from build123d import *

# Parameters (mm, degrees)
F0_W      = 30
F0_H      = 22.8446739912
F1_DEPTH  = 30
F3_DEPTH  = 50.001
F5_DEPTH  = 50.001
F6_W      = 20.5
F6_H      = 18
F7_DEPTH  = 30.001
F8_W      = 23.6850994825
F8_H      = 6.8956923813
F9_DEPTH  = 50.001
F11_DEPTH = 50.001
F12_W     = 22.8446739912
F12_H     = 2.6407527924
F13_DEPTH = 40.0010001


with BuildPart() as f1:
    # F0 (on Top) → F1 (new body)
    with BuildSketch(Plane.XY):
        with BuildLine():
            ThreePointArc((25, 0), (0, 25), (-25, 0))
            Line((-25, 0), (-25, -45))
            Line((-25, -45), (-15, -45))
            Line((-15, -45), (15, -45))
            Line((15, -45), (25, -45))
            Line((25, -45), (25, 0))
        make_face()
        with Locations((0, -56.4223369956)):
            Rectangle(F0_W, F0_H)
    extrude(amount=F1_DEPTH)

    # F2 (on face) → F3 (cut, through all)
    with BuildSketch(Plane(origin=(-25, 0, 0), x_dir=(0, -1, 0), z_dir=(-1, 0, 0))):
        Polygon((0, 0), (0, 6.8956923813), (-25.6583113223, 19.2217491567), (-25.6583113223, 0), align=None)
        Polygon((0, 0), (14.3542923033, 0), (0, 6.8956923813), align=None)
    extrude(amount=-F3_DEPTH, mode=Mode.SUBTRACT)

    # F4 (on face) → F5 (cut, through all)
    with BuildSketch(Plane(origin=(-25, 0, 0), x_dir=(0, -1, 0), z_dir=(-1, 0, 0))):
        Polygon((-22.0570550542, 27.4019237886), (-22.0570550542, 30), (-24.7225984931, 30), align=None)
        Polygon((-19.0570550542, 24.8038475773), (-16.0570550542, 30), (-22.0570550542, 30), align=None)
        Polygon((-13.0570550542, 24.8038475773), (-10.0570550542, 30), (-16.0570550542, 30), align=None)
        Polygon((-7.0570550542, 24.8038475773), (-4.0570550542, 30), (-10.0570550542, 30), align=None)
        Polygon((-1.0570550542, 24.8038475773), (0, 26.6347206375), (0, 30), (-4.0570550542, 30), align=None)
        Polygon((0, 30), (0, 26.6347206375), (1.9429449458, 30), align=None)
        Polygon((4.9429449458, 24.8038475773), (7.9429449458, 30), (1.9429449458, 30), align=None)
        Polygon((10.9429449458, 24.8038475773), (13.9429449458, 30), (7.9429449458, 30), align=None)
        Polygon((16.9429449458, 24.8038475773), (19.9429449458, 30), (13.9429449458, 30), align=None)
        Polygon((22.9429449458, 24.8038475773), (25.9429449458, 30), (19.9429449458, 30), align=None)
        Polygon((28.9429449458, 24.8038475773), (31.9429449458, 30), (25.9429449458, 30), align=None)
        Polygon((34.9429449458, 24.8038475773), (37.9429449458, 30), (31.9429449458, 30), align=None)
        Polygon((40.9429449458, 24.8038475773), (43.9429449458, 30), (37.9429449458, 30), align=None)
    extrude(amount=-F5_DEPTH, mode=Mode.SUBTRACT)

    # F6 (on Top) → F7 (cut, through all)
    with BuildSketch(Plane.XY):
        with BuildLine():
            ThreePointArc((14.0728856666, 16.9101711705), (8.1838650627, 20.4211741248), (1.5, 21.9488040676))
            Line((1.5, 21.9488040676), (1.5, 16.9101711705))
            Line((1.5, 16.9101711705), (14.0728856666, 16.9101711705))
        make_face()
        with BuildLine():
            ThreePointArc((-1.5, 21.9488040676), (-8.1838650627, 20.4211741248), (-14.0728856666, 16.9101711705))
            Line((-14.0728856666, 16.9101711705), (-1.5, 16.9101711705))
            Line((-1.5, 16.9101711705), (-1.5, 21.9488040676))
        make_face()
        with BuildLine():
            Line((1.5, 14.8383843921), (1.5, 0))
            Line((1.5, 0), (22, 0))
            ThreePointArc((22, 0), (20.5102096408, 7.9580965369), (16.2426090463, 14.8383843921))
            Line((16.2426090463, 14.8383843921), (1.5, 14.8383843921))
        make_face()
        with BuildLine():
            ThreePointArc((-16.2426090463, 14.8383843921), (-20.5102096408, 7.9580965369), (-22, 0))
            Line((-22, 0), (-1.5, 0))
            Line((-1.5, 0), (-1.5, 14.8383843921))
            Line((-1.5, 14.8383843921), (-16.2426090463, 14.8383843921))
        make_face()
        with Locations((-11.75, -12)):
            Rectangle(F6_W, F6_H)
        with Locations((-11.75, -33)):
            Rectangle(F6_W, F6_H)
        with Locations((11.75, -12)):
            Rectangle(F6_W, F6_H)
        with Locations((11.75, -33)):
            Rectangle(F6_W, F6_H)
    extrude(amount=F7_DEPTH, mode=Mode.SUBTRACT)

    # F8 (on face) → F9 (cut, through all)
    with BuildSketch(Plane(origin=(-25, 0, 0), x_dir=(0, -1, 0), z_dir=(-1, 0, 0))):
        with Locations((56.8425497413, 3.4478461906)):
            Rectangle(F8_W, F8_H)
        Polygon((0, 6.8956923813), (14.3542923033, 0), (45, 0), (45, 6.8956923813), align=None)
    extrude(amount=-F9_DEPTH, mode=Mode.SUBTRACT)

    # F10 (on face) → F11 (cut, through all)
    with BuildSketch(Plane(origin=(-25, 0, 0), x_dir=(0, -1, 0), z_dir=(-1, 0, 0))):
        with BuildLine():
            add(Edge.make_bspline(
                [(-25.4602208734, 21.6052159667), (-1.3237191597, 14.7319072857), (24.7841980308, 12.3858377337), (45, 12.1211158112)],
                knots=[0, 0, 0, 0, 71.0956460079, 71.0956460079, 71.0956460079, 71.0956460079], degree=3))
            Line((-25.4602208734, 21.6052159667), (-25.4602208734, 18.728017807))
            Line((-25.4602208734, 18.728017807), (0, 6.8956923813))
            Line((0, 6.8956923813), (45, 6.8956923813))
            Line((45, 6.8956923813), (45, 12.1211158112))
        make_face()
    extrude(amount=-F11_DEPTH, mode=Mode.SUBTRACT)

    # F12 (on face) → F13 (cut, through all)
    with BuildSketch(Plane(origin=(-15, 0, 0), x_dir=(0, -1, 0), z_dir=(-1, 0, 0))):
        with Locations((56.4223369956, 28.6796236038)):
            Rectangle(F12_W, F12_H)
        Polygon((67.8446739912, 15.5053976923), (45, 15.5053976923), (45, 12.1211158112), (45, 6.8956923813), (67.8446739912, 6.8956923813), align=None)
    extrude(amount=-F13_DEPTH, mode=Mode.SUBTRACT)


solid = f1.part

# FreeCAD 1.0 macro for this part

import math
import FreeCAD as App
import Part
import Sketcher
from FreeCAD import Vector
Q = App.Units.Quantity


def add_polygon(sketch, points):
    """Adds a closed chain of lines whose ends are joined by coincident constraints."""
    first, n = sketch.GeometryCount, len(points)
    for a, b in zip(points, points[1:] + points[:1]):
        sketch.addGeometry(Part.LineSegment(App.Vector(*a, 0), App.Vector(*b, 0)), False)
    for i in range(n):
        sketch.addConstraint(Sketcher.Constraint("Coincident", first + i, 2, first + (i + 1) % n, 1))

doc = App.newDocument("Part")
params = doc.addObject("Spreadsheet::Sheet", "Params")
for row, (alias, value) in enumerate([
    ("sketch1_radius", "25 mm"),
    ("sketch1_width", "10 mm"),
    ("sketch1_height", "45 mm"),
    ("pad1_length", "30 mm"),
    ("sketch3_width", "6 mm"),
    ("sketch4_radius", "22 mm"),
    ("sketch4_height", "18 mm"),
    ("sketch4_width", "20.5 mm"),
], start=1):
    params.set(f"A{row}", alias)
    params.set(f"B{row}", "=" + value)
    params.setAlias(f"B{row}", alias)

body = doc.addObject("PartDesign::Body", "Body")

# Sketch on XY plane
sketch1 = doc.addObject("Sketcher::SketchObject", "Sketch")
body.addObject(sketch1)
sketch1.AttachmentSupport = (doc.XY_Plane, [""])
sketch1.MapMode = "FlatFace"
sketch1.addGeometry([
    Part.ArcOfCircle(Part.Circle(Vector(0, 0, 0), Vector(0, 0, 1), 25), math.radians(0), math.radians(180)),  # 0
    Part.LineSegment(Vector(-25, 0, 0), Vector(-25, -45, 0)),  # 1
    Part.LineSegment(Vector(-25, -45, 0), Vector(-15, -45, 0)),  # 2
    Part.LineSegment(Vector(-15, -45, 0), Vector(-15, -68, 0)),  # 3
    Part.LineSegment(Vector(-15, -68, 0), Vector(15, -68, 0)),  # 4
    Part.LineSegment(Vector(15, -68, 0), Vector(15, -45, 0)),  # 5
    Part.LineSegment(Vector(15, -45, 0), Vector(25, -45, 0)),  # 6
    Part.LineSegment(Vector(25, -45, 0), Vector(25, 0, 0)),  # 7
], False)
sketch1.addConstraint([
    Sketcher.Constraint("Tangent", 0, 2, 1, 1),
    Sketcher.Constraint("Coincident", 1, 2, 2, 1),
    Sketcher.Constraint("Coincident", 2, 2, 3, 1),
    Sketcher.Constraint("Coincident", 3, 2, 4, 1),
    Sketcher.Constraint("Coincident", 4, 2, 5, 1),
    Sketcher.Constraint("Coincident", 5, 2, 6, 1),
    Sketcher.Constraint("Coincident", 6, 2, 7, 1),
    Sketcher.Constraint("Tangent", 7, 2, 0, 1),
    Sketcher.Constraint("Vertical", 1),
    Sketcher.Constraint("Horizontal", 2),
    Sketcher.Constraint("Vertical", 3),
    Sketcher.Constraint("Horizontal", 4),
    Sketcher.Constraint("Vertical", 5),
    Sketcher.Constraint("Horizontal", 6),
    Sketcher.Constraint("Vertical", 7),
    Sketcher.Constraint("Coincident", 0, 3, -1, 1),
    Sketcher.Constraint("Symmetric", 2, 2, 5, 2, -2),
    Sketcher.Constraint("Radius", 0, 25.0),
    Sketcher.Constraint("DistanceX", 2, 1, 2, 2, 10.0),
    Sketcher.Constraint("DistanceY", 1, 2, 1, 1, 45.0),
    Sketcher.Constraint("DistanceY", 3, 2, 3, 1, 22.844674),
])
sketch1.setExpression("Constraints[17]", "Params.sketch1_radius")
sketch1.setExpression("Constraints[18]", "Params.sketch1_width")
sketch1.setExpression("Constraints[19]", "Params.sketch1_height")
pad1 = doc.addObject("PartDesign::Pad", "Pad")
body.addObject(pad1)
pad1.Profile = sketch1
pad1.setExpression("Length", "Params.pad1_length")

# Sketch on YZ plane
sketch2 = doc.addObject("Sketcher::SketchObject", "Sketch001")
body.addObject(sketch2)
sketch2.AttachmentSupport = (doc.YZ_Plane, [""])
sketch2.MapMode = "FlatFace"
sketch2.AttachmentOffset = App.Placement(Vector(0, 0, -25), App.Rotation())
add_polygon(sketch2, [(0, 7), (26, 19), (26, 0), (-14, 0)])  # lines 0-3
sketch2.addConstraint([
    Sketcher.Constraint("Vertical", 1),
    Sketcher.Constraint("Horizontal", 2),
    Sketcher.Constraint("PointOnObject", 1, 2, -1),
    Sketcher.Constraint("PointOnObject", 3, 2, -2),
    Sketcher.Constraint("Parallel", 0, 3),
    Sketcher.Constraint("DistanceY", 1, 2, 1, 1, 19.221749),
    Sketcher.Constraint("Distance", 0, 28.465428),
    Sketcher.Constraint("DistanceX", 2, 2, 2, 1, 40.012604),
])
pocket1 = doc.addObject("PartDesign::Pocket", "Pocket")
body.addObject(pocket1)
pocket1.Profile = sketch2
pocket1.Type = "ThroughAll"
pocket1.Reversed = True

# Sketch on YZ plane
sketch3 = doc.addObject("Sketcher::SketchObject", "Sketch002")
body.addObject(sketch3)
sketch3.AttachmentSupport = (doc.YZ_Plane, [""])
sketch3.MapMode = "FlatFace"
sketch3.AttachmentOffset = App.Placement(Vector(0, 0, -25), App.Rotation())
add_polygon(sketch3, [(22.1, 27.4), (22.1, 30), (24.7, 30)])  # lines 0-2
add_polygon(sketch3, [(19.1, 24.8), (16.1, 30), (22.1, 30)])  # lines 3-5
add_polygon(sketch3, [(13.1, 24.8), (10.1, 30), (16.1, 30)])  # lines 6-8
add_polygon(sketch3, [(7.1, 24.8), (4.1, 30), (10.1, 30)])  # lines 9-11
add_polygon(sketch3, [(1.1, 24.8), (0, 26.6), (-1.9, 30), (4.1, 30)])  # lines 12-15
add_polygon(sketch3, [(-4.9, 24.8), (-7.9, 30), (-1.9, 30)])  # lines 16-18
add_polygon(sketch3, [(-10.9, 24.8), (-13.9, 30), (-7.9, 30)])  # lines 19-21
add_polygon(sketch3, [(-16.9, 24.8), (-19.9, 30), (-13.9, 30)])  # lines 22-24
add_polygon(sketch3, [(-22.9, 24.8), (-25.9, 30), (-19.9, 30)])  # lines 25-27
add_polygon(sketch3, [(-28.9, 24.8), (-31.9, 30), (-25.9, 30)])  # lines 28-30
add_polygon(sketch3, [(-34.9, 24.8), (-37.9, 30), (-31.9, 30)])  # lines 31-33
add_polygon(sketch3, [(-40.9, 24.8), (-43.9, 30), (-37.9, 30)])  # lines 34-36
sketch3.addConstraint([
    Sketcher.Constraint("Vertical", 0),
    Sketcher.Constraint("Horizontal", 1),
    Sketcher.Constraint("Horizontal", 4),
    Sketcher.Constraint("Horizontal", 7),
    Sketcher.Constraint("Horizontal", 10),
    Sketcher.Constraint("Horizontal", 14),
    Sketcher.Constraint("Horizontal", 17),
    Sketcher.Constraint("Horizontal", 20),
    Sketcher.Constraint("Horizontal", 23),
    Sketcher.Constraint("Horizontal", 26),
    Sketcher.Constraint("Horizontal", 29),
    Sketcher.Constraint("Horizontal", 32),
    Sketcher.Constraint("Horizontal", 35),
    Sketcher.Constraint("Coincident", 4, 2, 0, 2),
    Sketcher.Constraint("Coincident", 7, 2, 3, 2),
    Sketcher.Constraint("Coincident", 10, 2, 6, 2),
    Sketcher.Constraint("Coincident", 14, 2, 9, 2),
    Sketcher.Constraint("Coincident", 17, 2, 13, 2),
    Sketcher.Constraint("Coincident", 20, 2, 16, 2),
    Sketcher.Constraint("Coincident", 23, 2, 19, 2),
    Sketcher.Constraint("Coincident", 26, 2, 22, 2),
    Sketcher.Constraint("Coincident", 29, 2, 25, 2),
    Sketcher.Constraint("Coincident", 32, 2, 28, 2),
    Sketcher.Constraint("Coincident", 35, 2, 31, 2),
    Sketcher.Constraint("PointOnObject", 12, 2, -2),
    Sketcher.Constraint("Parallel", 3, 6),
    Sketcher.Constraint("Parallel", 5, 8),
    Sketcher.Constraint("Parallel", 6, 9),
    Sketcher.Constraint("Parallel", 8, 11),
    Sketcher.Constraint("Parallel", 9, 12),
    Sketcher.Constraint("Parallel", 12, 13),
    Sketcher.Constraint("Parallel", 11, 15),
    Sketcher.Constraint("Parallel", 13, 16),
    Sketcher.Constraint("Parallel", 15, 18),
    Sketcher.Constraint("Parallel", 16, 19),
    Sketcher.Constraint("Parallel", 18, 21),
    Sketcher.Constraint("Parallel", 19, 22),
    Sketcher.Constraint("Parallel", 21, 24),
    Sketcher.Constraint("Parallel", 22, 25),
    Sketcher.Constraint("Parallel", 24, 27),
    Sketcher.Constraint("Parallel", 25, 28),
    Sketcher.Constraint("Parallel", 27, 30),
    Sketcher.Constraint("Parallel", 28, 31),
    Sketcher.Constraint("Parallel", 30, 33),
    Sketcher.Constraint("Parallel", 31, 34),
    Sketcher.Constraint("Parallel", 33, 36),
    Sketcher.Constraint("Horizontal", 5, 2, 8, 2),
    Sketcher.Constraint("Horizontal", 8, 2, 11, 2),
    Sketcher.Constraint("Horizontal", 11, 2, 15, 2),
    Sketcher.Constraint("Horizontal", 15, 2, 18, 2),
    Sketcher.Constraint("Horizontal", 18, 2, 21, 2),
    Sketcher.Constraint("Horizontal", 21, 2, 24, 2),
    Sketcher.Constraint("Horizontal", 24, 2, 27, 2),
    Sketcher.Constraint("Horizontal", 27, 2, 30, 2),
    Sketcher.Constraint("Horizontal", 30, 2, 33, 2),
    Sketcher.Constraint("Horizontal", 33, 2, 36, 2),
    Sketcher.Constraint("Equal", 3, 5),
    Sketcher.Constraint("DistanceX", 4, 1, 4, 2, 6.0),
    Sketcher.Constraint("Angle", 3, Q("120 deg")),
    Sketcher.Constraint("DistanceY", -1, 1, 0, 2, 30.0),
    Sketcher.Constraint("DistanceX", -1, 1, 1, 2, 24.722598),
    Sketcher.Constraint("Distance", 12, 2.11411),
    Sketcher.Constraint("DistanceY", 0, 1, 0, 2, 2.598076),
])
sketch3.setExpression("Constraints[94]", "Params.sketch3_width")
pocket2 = doc.addObject("PartDesign::Pocket", "Pocket001")
body.addObject(pocket2)
pocket2.Profile = sketch3
pocket2.Type = "ThroughAll"
pocket2.Reversed = True

# Sketch on XY plane
sketch4 = doc.addObject("Sketcher::SketchObject", "Sketch003")
body.addObject(sketch4)
sketch4.AttachmentSupport = (doc.XY_Plane, [""])
sketch4.MapMode = "FlatFace"
sketch4.addGeometry(Part.ArcOfCircle(Part.Circle(Vector(0, 0, 0), Vector(0, 0, 1), 22), math.radians(50), math.radians(86)), False)  # 0
sketch4.addGeometry(Part.LineSegment(Vector(2, 22, 0), Vector(2, 17, 0)), False)  # 1
sketch4.addGeometry(Part.LineSegment(Vector(2, 17, 0), Vector(14, 17, 0)), False)  # 2
sketch4.addGeometry(Part.ArcOfCircle(Part.Circle(Vector(0, 0, 0), Vector(0, 0, 1), 22), math.radians(94), math.radians(130)), False)  # 3
sketch4.addGeometry(Part.LineSegment(Vector(-14, 17, 0), Vector(-2, 17, 0)), False)  # 4
sketch4.addGeometry(Part.LineSegment(Vector(-2, 17, 0), Vector(-2, 22, 0)), False)  # 5
sketch4.addGeometry(Part.LineSegment(Vector(2, 15, 0), Vector(2, 0, 0)), False)  # 6
sketch4.addGeometry(Part.LineSegment(Vector(2, 0, 0), Vector(22, 0, 0)), False)  # 7
sketch4.addGeometry(Part.ArcOfCircle(Part.Circle(Vector(0, 0, 0), Vector(0, 0, 1), 22), math.radians(0), math.radians(42)), False)  # 8
sketch4.addGeometry(Part.LineSegment(Vector(16, 15, 0), Vector(2, 15, 0)), False)  # 9
sketch4.addGeometry(Part.ArcOfCircle(Part.Circle(Vector(0, 0, 0), Vector(0, 0, 1), 22), math.radians(138), math.radians(180)), False)  # 10
sketch4.addGeometry(Part.LineSegment(Vector(-22, 0, 0), Vector(-2, 0, 0)), False)  # 11
sketch4.addGeometry(Part.LineSegment(Vector(-2, 0, 0), Vector(-2, 15, 0)), False)  # 12
sketch4.addGeometry(Part.LineSegment(Vector(-2, 15, 0), Vector(-16, 15, 0)), False)  # 13
add_polygon(sketch4, [(-22, -3), (-22, -21), (-2, -21), (-2, -3)])  # lines 14-17
add_polygon(sketch4, [(-22, -24), (-22, -42), (-2, -42), (-2, -24)])  # lines 18-21
add_polygon(sketch4, [(2, -3), (2, -21), (22, -21), (22, -3)])  # lines 22-25
add_polygon(sketch4, [(2, -24), (2, -42), (22, -42), (22, -24)])  # lines 26-29
sketch4.addConstraint([
    Sketcher.Constraint("Coincident", 0, 2, 1, 1),
    Sketcher.Constraint("Coincident", 1, 2, 2, 1),
    Sketcher.Constraint("Coincident", 2, 2, 0, 1),
    Sketcher.Constraint("Coincident", 3, 2, 4, 1),
    Sketcher.Constraint("Coincident", 4, 2, 5, 1),
    Sketcher.Constraint("Coincident", 5, 2, 3, 1),
    Sketcher.Constraint("Coincident", 6, 2, 7, 1),
    Sketcher.Constraint("Coincident", 7, 2, 8, 1),
    Sketcher.Constraint("Coincident", 8, 2, 9, 1),
    Sketcher.Constraint("Coincident", 9, 2, 6, 1),
    Sketcher.Constraint("Coincident", 10, 2, 11, 1),
    Sketcher.Constraint("Coincident", 11, 2, 12, 1),
    Sketcher.Constraint("Coincident", 12, 2, 13, 1),
    Sketcher.Constraint("Coincident", 13, 2, 10, 1),
    Sketcher.Constraint("Vertical", 1),
    Sketcher.Constraint("Horizontal", 2),
    Sketcher.Constraint("Horizontal", 4),
    Sketcher.Constraint("Vertical", 5),
    Sketcher.Constraint("Vertical", 6),
    Sketcher.Constraint("Horizontal", 7),
    Sketcher.Constraint("Horizontal", 9),
    Sketcher.Constraint("Horizontal", 11),
    Sketcher.Constraint("Vertical", 12),
    Sketcher.Constraint("Horizontal", 13),
    Sketcher.Constraint("Vertical", 14),
    Sketcher.Constraint("Horizontal", 15),
    Sketcher.Constraint("Vertical", 16),
    Sketcher.Constraint("Horizontal", 17),
    Sketcher.Constraint("Vertical", 18),
    Sketcher.Constraint("Horizontal", 19),
    Sketcher.Constraint("Vertical", 20),
    Sketcher.Constraint("Horizontal", 21),
    Sketcher.Constraint("Vertical", 22),
    Sketcher.Constraint("Horizontal", 23),
    Sketcher.Constraint("Vertical", 24),
    Sketcher.Constraint("Horizontal", 25),
    Sketcher.Constraint("Vertical", 26),
    Sketcher.Constraint("Horizontal", 27),
    Sketcher.Constraint("Vertical", 28),
    Sketcher.Constraint("Horizontal", 29),
    Sketcher.Constraint("Coincident", 0, 3, -1, 1),
    Sketcher.Constraint("Coincident", 3, 3, -1, 1),
    Sketcher.Constraint("Coincident", 8, 3, -1, 1),
    Sketcher.Constraint("Coincident", 10, 3, -1, 1),
    Sketcher.Constraint("Equal", 0, 3),
    Sketcher.Constraint("Equal", 3, 8),
    Sketcher.Constraint("Equal", 8, 10),
    Sketcher.Constraint("Symmetric", 6, 2, 11, 2, -1, 1),
    Sketcher.Constraint("Symmetric", 1, 2, 4, 2, -2),
    Sketcher.Constraint("Symmetric", 15, 2, 22, 2, -2),
    Sketcher.Constraint("Symmetric", 17, 2, 24, 2, -2),
    Sketcher.Constraint("Symmetric", 19, 2, 26, 2, -2),
    Sketcher.Constraint("Symmetric", 21, 2, 28, 2, -2),
    Sketcher.Constraint("PointOnObject", 6, 2, -1),
    Sketcher.Constraint("Horizontal", 9, 2, 12, 2),
    Sketcher.Constraint("Vertical", 1, 2, 6, 2),
    Sketcher.Constraint("Vertical", 10, 2, 14, 2),
    Sketcher.Constraint("Vertical", 12, 2, 15, 2),
    Sketcher.Constraint("Vertical", 17, 2, 18, 2),
    Sketcher.Constraint("Vertical", 16, 2, 19, 2),
    Sketcher.Constraint("Equal", 16, 18),
    Sketcher.Constraint("Radius", 0, 22.0),
    Sketcher.Constraint("DistanceY", 14, 2, 14, 1, 18.0),
    Sketcher.Constraint("DistanceX", 7, 1, 7, 2, 20.5),
    Sketcher.Constraint("DistanceY", 14, 2, -1, 1, 21.0),
    Sketcher.Constraint("DistanceY", 18, 2, -1, 1, 42.0),
    Sketcher.Constraint("DistanceX", 9, 2, 9, 1, 14.742609),
    Sketcher.Constraint("DistanceX", 2, 1, 2, 2, 12.572886),
])
sketch4.setExpression("Constraints[77]", "Params.sketch4_radius")
sketch4.setExpression("Constraints[78]", "Params.sketch4_height")
sketch4.setExpression("Constraints[79]", "Params.sketch4_width")
pocket3 = doc.addObject("PartDesign::Pocket", "Pocket002")
body.addObject(pocket3)
pocket3.Profile = sketch4
pocket3.Type = "ThroughAll"
pocket3.Reversed = True

# Sketch on YZ plane
sketch5 = doc.addObject("Sketcher::SketchObject", "Sketch004")
body.addObject(sketch5)
sketch5.AttachmentSupport = (doc.YZ_Plane, [""])
sketch5.MapMode = "FlatFace"
sketch5.AttachmentOffset = App.Placement(Vector(0, 0, -25), App.Rotation())
add_polygon(sketch5, [(-69, 0), (-69, 7), (0, 7), (-14, 0)])  # lines 0-3
sketch5.addConstraint([
    Sketcher.Constraint("Vertical", 0),
    Sketcher.Constraint("Horizontal", 1),
    Sketcher.Constraint("Horizontal", 3),
    Sketcher.Constraint("PointOnObject", 1, 2, -2),
    Sketcher.Constraint("PointOnObject", 2, 2, -1),
    Sketcher.Constraint("DistanceX", 1, 1, 1, 2, 68.685099),
    Sketcher.Constraint("DistanceX", 3, 2, 3, 1, 54.330807),
    Sketcher.Constraint("DistanceY", 0, 1, 0, 2, 6.895692),
])
pocket4 = doc.addObject("PartDesign::Pocket", "Pocket003")
body.addObject(pocket4)
pocket4.Profile = sketch5
pocket4.Type = "ThroughAll"
pocket4.Reversed = True

# Sketch on YZ plane
sketch6 = doc.addObject("Sketcher::SketchObject", "Sketch005")
body.addObject(sketch6)
sketch6.AttachmentSupport = (doc.YZ_Plane, [""])
sketch6.MapMode = "FlatFace"
sketch6.AttachmentOffset = App.Placement(Vector(0, 0, -25), App.Rotation())
sketch6.addGeometry([
    Part.BSplineCurve([Vector(25.460221, 21.605216, 0), Vector(1.323719, 14.731907, 0), Vector(-24.784198, 12.385838, 0), Vector(-45, 12.121116, 0)], [4, 4], [0, 71.095646008], False, 3, [1, 1, 1, 1], False),  # 0
    Part.LineSegment(Vector(25.460221, 21.605216, 0), Vector(25.460221, 18.728018, 0)),  # 1
    Part.LineSegment(Vector(25.460221, 18.728018, 0), Vector(0, 6.895692, 0)),  # 2
    Part.LineSegment(Vector(0, 6.895692, 0), Vector(-45, 6.895692, 0)),  # 3
    Part.LineSegment(Vector(-45, 6.895692, 0), Vector(-45, 12.121116, 0)),  # 4
], False)
sketch6.addConstraint([
    Sketcher.Constraint("Block", 0),
    Sketcher.Constraint("Coincident", 0, 1, 1, 1),
    Sketcher.Constraint("Coincident", 1, 2, 2, 1),
    Sketcher.Constraint("Coincident", 2, 2, 3, 1),
    Sketcher.Constraint("Coincident", 3, 2, 4, 1),
    Sketcher.Constraint("Coincident", 4, 2, 0, 2),
    Sketcher.Constraint("Vertical", 1),
    Sketcher.Constraint("Horizontal", 3),
    Sketcher.Constraint("Vertical", 4),
    Sketcher.Constraint("PointOnObject", 2, 2, -2),
    Sketcher.Constraint("DistanceY", 1, 2, 1, 1, 2.877198),
    Sketcher.Constraint("DistanceY", 4, 1, 4, 2, 5.225423),
])
pocket5 = doc.addObject("PartDesign::Pocket", "Pocket004")
body.addObject(pocket5)
pocket5.Profile = sketch6
pocket5.Type = "ThroughAll"
pocket5.Reversed = True

# Sketch on YZ plane
sketch7 = doc.addObject("Sketcher::SketchObject", "Sketch006")
body.addObject(sketch7)
sketch7.AttachmentSupport = (doc.YZ_Plane, [""])
sketch7.MapMode = "FlatFace"
sketch7.AttachmentOffset = App.Placement(Vector(0, 0, -15), App.Rotation())
add_polygon(sketch7, [(-45, 30), (-45, 27.4), (-67.8, 27.4), (-67.8, 30)])  # lines 0-3
add_polygon(sketch7, [(-67.8, 15.5), (-45, 15.5), (-45, 6.9), (-67.8, 6.9)])  # lines 4-7
sketch7.addConstraint([
    Sketcher.Constraint("Vertical", 0),
    Sketcher.Constraint("Horizontal", 1),
    Sketcher.Constraint("Vertical", 2),
    Sketcher.Constraint("Horizontal", 3),
    Sketcher.Constraint("Horizontal", 4),
    Sketcher.Constraint("Vertical", 5),
    Sketcher.Constraint("Horizontal", 6),
    Sketcher.Constraint("Vertical", 7),
    Sketcher.Constraint("Vertical", 3, 2, 4, 2),
    Sketcher.Constraint("Vertical", 2, 2, 6, 2),
    Sketcher.Constraint("DistanceX", 0, 2, -1, 1, 45.0),
    Sketcher.Constraint("DistanceY", -1, 1, 2, 2, 30.0),
    Sketcher.Constraint("DistanceX", 1, 2, 1, 1, 22.844674),
    Sketcher.Constraint("DistanceY", 0, 2, 0, 1, 2.640753),
    Sketcher.Constraint("DistanceY", 5, 2, 5, 1, 8.609705),
    Sketcher.Constraint("DistanceY", 4, 2, 0, 2, 11.85385),
])
pocket6 = doc.addObject("PartDesign::Pocket", "Pocket005")
body.addObject(pocket6)
pocket6.Profile = sketch7
pocket6.Type = "ThroughAll"
pocket6.Reversed = True

doc.recompute()
